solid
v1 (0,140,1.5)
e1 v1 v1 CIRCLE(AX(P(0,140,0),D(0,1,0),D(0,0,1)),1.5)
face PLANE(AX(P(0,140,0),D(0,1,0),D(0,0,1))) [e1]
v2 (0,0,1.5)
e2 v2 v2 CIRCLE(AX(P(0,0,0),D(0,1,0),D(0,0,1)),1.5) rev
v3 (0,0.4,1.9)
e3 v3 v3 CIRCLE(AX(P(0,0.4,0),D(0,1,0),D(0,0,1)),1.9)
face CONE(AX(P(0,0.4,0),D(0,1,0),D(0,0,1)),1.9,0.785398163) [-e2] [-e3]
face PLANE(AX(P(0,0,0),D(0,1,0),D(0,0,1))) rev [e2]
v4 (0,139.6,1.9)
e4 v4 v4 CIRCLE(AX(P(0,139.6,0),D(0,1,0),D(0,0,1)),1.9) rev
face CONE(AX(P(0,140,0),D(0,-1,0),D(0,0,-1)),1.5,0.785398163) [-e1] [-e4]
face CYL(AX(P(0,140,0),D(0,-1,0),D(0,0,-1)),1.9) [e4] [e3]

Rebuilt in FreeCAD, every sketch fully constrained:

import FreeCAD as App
import Part
import Sketcher


def edges_at(feature, points):
    """Names of the edges that pass closest to the given points."""
    edges = feature.Shape.Edges
    near = lambda p: min(range(len(edges)), key=lambda i: edges[i].distToShape(Part.Vertex(*p))[0])
    return sorted({f"Edge{near(p) + 1}" for p in points})

doc = App.newDocument("Part")
params = doc.addObject("Spreadsheet::Sheet", "Params")
for row, (alias, value) in enumerate([
    ("sketch1_diameter", "3.8 mm"),
    ("pad1_length", "140 mm"),
    ("chamfer_size", "0.4 mm"),
], start=1):
    params.set(f"A{row}", alias)
    params.set(f"B{row}", "=" + value)
    params.setAlias(f"B{row}", alias)

body = doc.addObject("PartDesign::Body", "Body")

sketch1 = body.newObject("Sketcher::SketchObject", "Sketch")
sketch1.AttachmentSupport = (doc.getObject("XZ_Plane"), [""])
sketch1.MapMode = "FlatFace"
sketch1.addGeometry(Part.Circle(App.Vector(0, 0, 0), App.Vector(0, 0, 1), 1.9), False)
sketch1.addConstraint(Sketcher.Constraint("Coincident", 0, 3, -1, 1))
sketch1.addConstraint(Sketcher.Constraint("Diameter", 0, 3.8))
sketch1.setExpression("Constraints[1]", "Params.sketch1_diameter")
pad1 = body.newObject("PartDesign::Pad", "Pad")
pad1.Profile = sketch1
pad1.setExpression("Length", "Params.pad1_length")
pad1.Reversed = True
doc.recompute()

chamfer = body.newObject("PartDesign::Chamfer", "Chamfer")
chamfer.Base = (pad1, edges_at(pad1, [(0, 0, -1.9), (0, 140, -1.9)]))
chamfer.setExpression("Size", "Params.chamfer_size")

doc.recompute()
